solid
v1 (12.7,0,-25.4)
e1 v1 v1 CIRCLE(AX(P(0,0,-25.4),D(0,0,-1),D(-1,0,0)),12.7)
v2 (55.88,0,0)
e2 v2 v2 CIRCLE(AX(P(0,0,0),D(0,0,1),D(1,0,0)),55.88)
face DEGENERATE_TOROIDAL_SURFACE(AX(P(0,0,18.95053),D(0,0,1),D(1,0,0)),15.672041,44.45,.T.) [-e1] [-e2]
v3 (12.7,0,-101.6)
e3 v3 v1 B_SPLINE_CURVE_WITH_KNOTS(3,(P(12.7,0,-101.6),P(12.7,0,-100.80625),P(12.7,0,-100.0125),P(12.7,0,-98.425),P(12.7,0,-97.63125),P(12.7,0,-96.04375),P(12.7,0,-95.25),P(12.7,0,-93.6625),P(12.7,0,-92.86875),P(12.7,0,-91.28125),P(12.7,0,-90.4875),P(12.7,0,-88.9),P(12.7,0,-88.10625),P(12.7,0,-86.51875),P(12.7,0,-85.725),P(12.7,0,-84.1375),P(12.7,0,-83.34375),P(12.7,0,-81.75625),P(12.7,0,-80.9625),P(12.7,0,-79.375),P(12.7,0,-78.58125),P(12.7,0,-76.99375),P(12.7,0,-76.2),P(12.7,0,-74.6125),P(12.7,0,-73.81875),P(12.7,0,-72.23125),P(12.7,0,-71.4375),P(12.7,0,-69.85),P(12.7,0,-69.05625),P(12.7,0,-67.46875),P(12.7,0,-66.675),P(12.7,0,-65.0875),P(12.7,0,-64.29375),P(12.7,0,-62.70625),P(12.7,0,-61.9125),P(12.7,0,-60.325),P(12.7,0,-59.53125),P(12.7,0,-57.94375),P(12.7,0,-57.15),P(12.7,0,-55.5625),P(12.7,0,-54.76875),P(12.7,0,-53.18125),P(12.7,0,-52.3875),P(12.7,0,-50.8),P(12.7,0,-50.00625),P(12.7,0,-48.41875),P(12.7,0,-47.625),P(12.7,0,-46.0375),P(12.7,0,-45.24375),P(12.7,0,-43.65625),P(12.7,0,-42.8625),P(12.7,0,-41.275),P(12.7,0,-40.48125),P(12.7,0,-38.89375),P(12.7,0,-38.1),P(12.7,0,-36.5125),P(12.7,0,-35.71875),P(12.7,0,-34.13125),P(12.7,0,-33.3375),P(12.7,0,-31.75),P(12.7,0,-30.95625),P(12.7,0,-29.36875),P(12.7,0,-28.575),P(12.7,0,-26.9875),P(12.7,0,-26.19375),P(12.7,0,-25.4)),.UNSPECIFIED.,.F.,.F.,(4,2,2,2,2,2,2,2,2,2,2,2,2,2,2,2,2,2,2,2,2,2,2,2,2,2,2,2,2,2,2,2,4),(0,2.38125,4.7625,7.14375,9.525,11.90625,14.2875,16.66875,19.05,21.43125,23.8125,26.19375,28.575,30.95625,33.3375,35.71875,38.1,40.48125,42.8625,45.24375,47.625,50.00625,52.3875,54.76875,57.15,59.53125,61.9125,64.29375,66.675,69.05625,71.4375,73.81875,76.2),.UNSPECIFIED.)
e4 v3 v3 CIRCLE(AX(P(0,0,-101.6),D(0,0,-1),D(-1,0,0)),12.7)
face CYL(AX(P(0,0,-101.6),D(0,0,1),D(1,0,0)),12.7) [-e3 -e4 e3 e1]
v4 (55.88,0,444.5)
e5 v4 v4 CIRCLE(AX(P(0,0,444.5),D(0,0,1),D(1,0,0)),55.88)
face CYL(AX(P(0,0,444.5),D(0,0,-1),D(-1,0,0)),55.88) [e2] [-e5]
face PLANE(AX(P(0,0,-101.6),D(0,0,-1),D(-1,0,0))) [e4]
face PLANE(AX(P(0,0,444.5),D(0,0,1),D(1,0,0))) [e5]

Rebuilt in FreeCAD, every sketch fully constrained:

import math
import FreeCAD as App
import Part
import Sketcher

V = App.Vector
Q = App.Units.Quantity

doc = App.newDocument("Part")
body = doc.addObject("PartDesign::Body", "Body")

sketch1 = body.newObject("Sketcher::SketchObject", "Sketch")
sketch1.AttachmentSupport = (doc.getObject("XY_Plane"), [""])
sketch1.MapMode = "FlatFace"
sketch1.addGeometry(Part.Circle(V(0, 0, 0), V(0, 0, 1), 56), False)
sketch1.addConstraint(Sketcher.Constraint("Coincident", 0, 3, -1, 1))
sketch1.addConstraint(Sketcher.Constraint("Diameter", 0, Q("4.4 in")))
pad1 = body.newObject("PartDesign::Pad", "Pad")
pad1.Profile = sketch1
pad1.Length = Q("17.5 in")

sketch2 = body.newObject("Sketcher::SketchObject", "Sketch001")
sketch2.AttachmentSupport = (doc.getObject("YZ_Plane"), [""])
sketch2.MapMode = "FlatFace"
sketch2.addGeometry(Part.LineSegment(V(-13, -25, 0), V(0, -25, 0)), False)
sketch2.addGeometry(Part.LineSegment(V(0, -25, 0), V(0, 0, 0)), False)
sketch2.addGeometry(Part.LineSegment(V(0, 0, 0), V(-56, 0, 0)), False)
sketch2.addGeometry(Part.ArcOfCircle(Part.Circle(V(-16, 19, 0), V(0, 0, 1), 44), math.radians(-155), math.radians(-86)), False)
sketch2.addConstraint(Sketcher.Constraint("Coincident", 0, 2, 1, 1))
sketch2.addConstraint(Sketcher.Constraint("Coincident", 1, 2, 2, 1))
sketch2.addConstraint(Sketcher.Constraint("Coincident", 2, 2, 3, 1))
sketch2.addConstraint(Sketcher.Constraint("Coincident", 3, 2, 0, 1))
sketch2.addConstraint(Sketcher.Constraint("Horizontal", 0))
sketch2.addConstraint(Sketcher.Constraint("Vertical", 1))
sketch2.addConstraint(Sketcher.Constraint("Horizontal", 2))
sketch2.addConstraint(Sketcher.Constraint("Coincident", 1, 2, -1, 1))
sketch2.addConstraint(Sketcher.Constraint("DistanceY", 1, 1, 1, 2, Q("1 in")))
sketch2.addConstraint(Sketcher.Constraint("Radius", 3, Q("1.75 in")))
sketch2.addConstraint(Sketcher.Constraint("DistanceX", 0, 1, 0, 2, Q("0.5 in")))
sketch2.addConstraint(Sketcher.Constraint("DistanceX", 2, 2, 2, 1, Q("2.2 in")))
revolution = body.newObject("PartDesign::Revolution", "Revolution")
revolution.Profile = sketch2
revolution.ReferenceAxis = (sketch2, ["V_Axis"])
revolution.Angle = 360

sketch3 = body.newObject("Sketcher::SketchObject", "Sketch002")
sketch3.AttachmentSupport = (doc.getObject("XY_Plane"), [""])
sketch3.MapMode = "FlatFace"
sketch3.AttachmentOffset = App.Placement(V(0, 0, -1 * 25.4), App.Rotation())
sketch3.addGeometry(Part.Circle(V(0, 0, 0), V(0, 0, 1), 13), False)
sketch3.addConstraint(Sketcher.Constraint("Coincident", 0, 3, -1, 1))
sketch3.addConstraint(Sketcher.Constraint("Diameter", 0, Q("1 in")))
pad2 = body.newObject("PartDesign::Pad", "Pad001")
pad2.Profile = sketch3
pad2.Length = Q("3 in")
pad2.Reversed = True

doc.recompute()
